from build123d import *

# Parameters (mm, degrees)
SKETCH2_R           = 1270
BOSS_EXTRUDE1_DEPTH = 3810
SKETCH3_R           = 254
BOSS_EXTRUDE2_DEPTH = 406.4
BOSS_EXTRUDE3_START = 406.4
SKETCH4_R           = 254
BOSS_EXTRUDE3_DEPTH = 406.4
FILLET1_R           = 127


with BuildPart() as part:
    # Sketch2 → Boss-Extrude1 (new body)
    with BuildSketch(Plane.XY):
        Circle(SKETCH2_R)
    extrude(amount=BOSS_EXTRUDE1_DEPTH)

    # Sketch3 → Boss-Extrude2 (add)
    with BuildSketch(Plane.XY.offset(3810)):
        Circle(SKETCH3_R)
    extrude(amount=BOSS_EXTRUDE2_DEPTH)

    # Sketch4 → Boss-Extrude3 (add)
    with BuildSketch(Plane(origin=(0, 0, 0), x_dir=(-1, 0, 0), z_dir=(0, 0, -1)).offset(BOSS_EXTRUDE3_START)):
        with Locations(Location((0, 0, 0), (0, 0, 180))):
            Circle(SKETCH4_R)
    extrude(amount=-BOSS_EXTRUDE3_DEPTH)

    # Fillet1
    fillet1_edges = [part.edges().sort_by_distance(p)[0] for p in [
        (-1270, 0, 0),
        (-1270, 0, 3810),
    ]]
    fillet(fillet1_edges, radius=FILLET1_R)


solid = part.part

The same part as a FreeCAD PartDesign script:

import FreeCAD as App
import Part
import Sketcher

V = App.Vector
Q = App.Units.Quantity


def edges_at(feature, points):
    """Names of the edges that pass closest to the given points."""
    edges = feature.Shape.Edges
    near = lambda p: min(range(len(edges)), key=lambda i: edges[i].distToShape(Part.Vertex(*p))[0])
    return sorted({f"Edge{near(p) + 1}" for p in points})

doc = App.newDocument("Part")
body = doc.addObject("PartDesign::Body", "Body")

sketch1 = doc.addObject("Sketcher::SketchObject", "Sketch")
body.addObject(sketch1)
sketch1.AttachmentSupport = (doc.XY_Plane, [""])
sketch1.MapMode = "FlatFace"
sketch1.addGeometry(Part.Circle(V(0, 0, 0), V(0, 0, 1), 1270), False)
sketch1.addConstraint([
    Sketcher.Constraint("Coincident", 0, 3, -1, 1),
    Sketcher.Constraint("Diameter", 0, Q("100 in")),
])
pad1 = doc.addObject("PartDesign::Pad", "Pad")
body.addObject(pad1)
pad1.Profile = sketch1
pad1.Length = Q("150 in")

sketch2 = doc.addObject("Sketcher::SketchObject", "Sketch001")
body.addObject(sketch2)
sketch2.AttachmentSupport = (doc.XY_Plane, [""])
sketch2.MapMode = "FlatFace"
sketch2.AttachmentOffset = App.Placement(V(0, 0, 150 * 25.4), App.Rotation())
sketch2.addGeometry(Part.Circle(V(0, 0, 0), V(0, 0, 1), 254), False)
sketch2.addConstraint([
    Sketcher.Constraint("Coincident", 0, 3, -1, 1),
    Sketcher.Constraint("Diameter", 0, Q("20 in")),
])
pad2 = doc.addObject("PartDesign::Pad", "Pad001")
body.addObject(pad2)
pad2.Profile = sketch2
pad2.Length = Q("16 in")

sketch3 = doc.addObject("Sketcher::SketchObject", "Sketch002")
body.addObject(sketch3)
sketch3.AttachmentSupport = (doc.XY_Plane, [""])
sketch3.MapMode = "FlatFace"
sketch3.AttachmentOffset = App.Placement(V(0, 0, -16 * 25.4), App.Rotation())
sketch3.addGeometry(Part.Circle(V(0, 0, 0), V(0, 0, 1), 254), False)
sketch3.addConstraint([
    Sketcher.Constraint("Coincident", 0, 3, -1, 1),
    Sketcher.Constraint("Diameter", 0, Q("20 in")),
])
pad3 = doc.addObject("PartDesign::Pad", "Pad002")
body.addObject(pad3)
pad3.Profile = sketch3
pad3.Length = Q("16 in")
doc.recompute()

fillet = doc.addObject("PartDesign::Fillet", "Fillet")
body.addObject(fillet)
fillet.Base = (pad3, edges_at(pad3, [(-1270, 0, 0), (-1270, 0, 3810)]))
fillet.Radius = Q("5 in")

doc.recompute()
